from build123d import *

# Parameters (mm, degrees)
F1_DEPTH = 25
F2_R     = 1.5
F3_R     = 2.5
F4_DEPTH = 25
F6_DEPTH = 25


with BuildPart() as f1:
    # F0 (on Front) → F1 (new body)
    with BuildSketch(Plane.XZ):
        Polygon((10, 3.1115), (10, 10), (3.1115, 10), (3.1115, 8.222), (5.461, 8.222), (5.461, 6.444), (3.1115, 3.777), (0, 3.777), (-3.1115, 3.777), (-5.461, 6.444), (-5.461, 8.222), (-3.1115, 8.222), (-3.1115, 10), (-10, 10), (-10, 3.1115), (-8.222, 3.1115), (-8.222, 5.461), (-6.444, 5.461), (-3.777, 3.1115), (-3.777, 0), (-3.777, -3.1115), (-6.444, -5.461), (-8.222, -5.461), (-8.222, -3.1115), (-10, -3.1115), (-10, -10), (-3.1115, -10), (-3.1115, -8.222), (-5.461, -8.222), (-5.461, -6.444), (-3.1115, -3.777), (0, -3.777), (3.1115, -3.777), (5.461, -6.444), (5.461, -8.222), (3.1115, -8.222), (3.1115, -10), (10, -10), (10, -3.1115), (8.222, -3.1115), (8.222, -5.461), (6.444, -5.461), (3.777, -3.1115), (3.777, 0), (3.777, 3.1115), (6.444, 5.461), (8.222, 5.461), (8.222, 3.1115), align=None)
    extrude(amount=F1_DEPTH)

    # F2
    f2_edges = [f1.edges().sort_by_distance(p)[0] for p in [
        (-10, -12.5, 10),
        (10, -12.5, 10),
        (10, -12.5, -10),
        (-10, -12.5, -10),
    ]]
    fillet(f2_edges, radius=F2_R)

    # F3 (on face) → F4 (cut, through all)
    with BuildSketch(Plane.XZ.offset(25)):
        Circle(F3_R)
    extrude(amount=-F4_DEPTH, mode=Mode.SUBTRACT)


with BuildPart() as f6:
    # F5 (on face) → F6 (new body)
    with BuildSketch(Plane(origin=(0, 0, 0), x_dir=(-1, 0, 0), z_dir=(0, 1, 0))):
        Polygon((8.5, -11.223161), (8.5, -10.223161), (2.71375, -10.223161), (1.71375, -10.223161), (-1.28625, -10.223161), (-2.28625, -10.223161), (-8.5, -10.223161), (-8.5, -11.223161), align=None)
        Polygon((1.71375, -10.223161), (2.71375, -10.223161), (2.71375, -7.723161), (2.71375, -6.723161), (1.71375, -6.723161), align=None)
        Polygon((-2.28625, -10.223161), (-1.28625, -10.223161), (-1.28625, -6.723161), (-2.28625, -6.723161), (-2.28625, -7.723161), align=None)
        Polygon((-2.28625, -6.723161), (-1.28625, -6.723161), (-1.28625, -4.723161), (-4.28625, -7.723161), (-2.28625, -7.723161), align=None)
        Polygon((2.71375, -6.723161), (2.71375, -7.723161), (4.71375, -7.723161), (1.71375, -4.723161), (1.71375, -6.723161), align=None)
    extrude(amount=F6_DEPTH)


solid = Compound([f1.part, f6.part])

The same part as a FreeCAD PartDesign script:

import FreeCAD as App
import Part
import Sketcher
from FreeCAD import Vector


def edges_at(feature, points):
    """Names of the edges that pass closest to the given points."""
    edges = feature.Shape.Edges
    near = lambda p: min(range(len(edges)), key=lambda i: edges[i].distToShape(Part.Vertex(*p))[0])
    return sorted({f"Edge{near(p) + 1}" for p in points})

doc = App.newDocument("Part")
body = doc.addObject("PartDesign::Body", "Body")

# Sketch on XZ plane
sketch1 = body.newObject("Sketcher::SketchObject", "Sketch")
sketch1.AttachmentSupport = (doc.getObject("XZ_Plane"), [""])
sketch1.MapMode = "FlatFace"
sketch1.addGeometry(Part.LineSegment(Vector(10, 3.1, 0), Vector(10, 10, 0)), False)
sketch1.addGeometry(Part.LineSegment(Vector(10, 10, 0), Vector(3.1, 10, 0)), False)
sketch1.addGeometry(Part.LineSegment(Vector(3.1, 10, 0), Vector(3.1, 8.2, 0)), False)
sketch1.addGeometry(Part.LineSegment(Vector(3.1, 8.2, 0), Vector(5.5, 8.2, 0)), False)
sketch1.addGeometry(Part.LineSegment(Vector(5.5, 8.2, 0), Vector(5.5, 6.4, 0)), False)
sketch1.addGeometry(Part.LineSegment(Vector(5.5, 6.4, 0), Vector(3.1, 3.8, 0)), False)
sketch1.addGeometry(Part.LineSegment(Vector(3.1, 3.8, 0), Vector(-3.1, 3.8, 0)), False)
sketch1.addGeometry(Part.LineSegment(Vector(-3.1, 3.8, 0), Vector(-5.5, 6.4, 0)), False)
sketch1.addGeometry(Part.LineSegment(Vector(-5.5, 6.4, 0), Vector(-5.5, 8.2, 0)), False)
sketch1.addGeometry(Part.LineSegment(Vector(-5.5, 8.2, 0), Vector(-3.1, 8.2, 0)), False)
sketch1.addGeometry(Part.LineSegment(Vector(-3.1, 8.2, 0), Vector(-3.1, 10, 0)), False)
sketch1.addGeometry(Part.LineSegment(Vector(-3.1, 10, 0), Vector(-10, 10, 0)), False)
sketch1.addGeometry(Part.LineSegment(Vector(-10, 10, 0), Vector(-10, 3.1, 0)), False)
sketch1.addGeometry(Part.LineSegment(Vector(-10, 3.1, 0), Vector(-8.2, 3.1, 0)), False)
sketch1.addGeometry(Part.LineSegment(Vector(-8.2, 3.1, 0), Vector(-8.2, 5.5, 0)), False)
sketch1.addGeometry(Part.LineSegment(Vector(-8.2, 5.5, 0), Vector(-6.4, 5.5, 0)), False)
sketch1.addGeometry(Part.LineSegment(Vector(-6.4, 5.5, 0), Vector(-3.8, 3.1, 0)), False)
sketch1.addGeometry(Part.LineSegment(Vector(-3.8, 3.1, 0), Vector(-3.8, -3.1, 0)), False)
sketch1.addGeometry(Part.LineSegment(Vector(-3.8, -3.1, 0), Vector(-6.4, -5.5, 0)), False)
sketch1.addGeometry(Part.LineSegment(Vector(-6.4, -5.5, 0), Vector(-8.2, -5.5, 0)), False)
sketch1.addGeometry(Part.LineSegment(Vector(-8.2, -5.5, 0), Vector(-8.2, -3.1, 0)), False)
sketch1.addGeometry(Part.LineSegment(Vector(-8.2, -3.1, 0), Vector(-10, -3.1, 0)), False)
sketch1.addGeometry(Part.LineSegment(Vector(-10, -3.1, 0), Vector(-10, -10, 0)), False)
sketch1.addGeometry(Part.LineSegment(Vector(-10, -10, 0), Vector(-3.1, -10, 0)), False)
sketch1.addGeometry(Part.LineSegment(Vector(-3.1, -10, 0), Vector(-3.1, -8.2, 0)), False)
sketch1.addGeometry(Part.LineSegment(Vector(-3.1, -8.2, 0), Vector(-5.5, -8.2, 0)), False)
sketch1.addGeometry(Part.LineSegment(Vector(-5.5, -8.2, 0), Vector(-5.5, -6.4, 0)), False)
sketch1.addGeometry(Part.LineSegment(Vector(-5.5, -6.4, 0), Vector(-3.1, -3.8, 0)), False)
sketch1.addGeometry(Part.LineSegment(Vector(-3.1, -3.8, 0), Vector(3.1, -3.8, 0)), False)
sketch1.addGeometry(Part.LineSegment(Vector(3.1, -3.8, 0), Vector(5.5, -6.4, 0)), False)
sketch1.addGeometry(Part.LineSegment(Vector(5.5, -6.4, 0), Vector(5.5, -8.2, 0)), False)
sketch1.addGeometry(Part.LineSegment(Vector(5.5, -8.2, 0), Vector(3.1, -8.2, 0)), False)
sketch1.addGeometry(Part.LineSegment(Vector(3.1, -8.2, 0), Vector(3.1, -10, 0)), False)
sketch1.addGeometry(Part.LineSegment(Vector(3.1, -10, 0), Vector(10, -10, 0)), False)
sketch1.addGeometry(Part.LineSegment(Vector(10, -10, 0), Vector(10, -3.1, 0)), False)
sketch1.addGeometry(Part.LineSegment(Vector(10, -3.1, 0), Vector(8.2, -3.1, 0)), False)
sketch1.addGeometry(Part.LineSegment(Vector(8.2, -3.1, 0), Vector(8.2, -5.5, 0)), False)
sketch1.addGeometry(Part.LineSegment(Vector(8.2, -5.5, 0), Vector(6.4, -5.5, 0)), False)
sketch1.addGeometry(Part.LineSegment(Vector(6.4, -5.5, 0), Vector(3.8, -3.1, 0)), False)
sketch1.addGeometry(Part.LineSegment(Vector(3.8, -3.1, 0), Vector(3.8, 3.1, 0)), False)
sketch1.addGeometry(Part.LineSegment(Vector(3.8, 3.1, 0), Vector(6.4, 5.5, 0)), False)
sketch1.addGeometry(Part.LineSegment(Vector(6.4, 5.5, 0), Vector(8.2, 5.5, 0)), False)
sketch1.addGeometry(Part.LineSegment(Vector(8.2, 5.5, 0), Vector(8.2, 3.1, 0)), False)
sketch1.addGeometry(Part.LineSegment(Vector(8.2, 3.1, 0), Vector(10, 3.1, 0)), False)
sketch1.addConstraint(Sketcher.Constraint("Coincident", 0, 2, 1, 1))
sketch1.addConstraint(Sketcher.Constraint("Coincident", 1, 2, 2, 1))
sketch1.addConstraint(Sketcher.Constraint("Coincident", 2, 2, 3, 1))
sketch1.addConstraint(Sketcher.Constraint("Coincident", 3, 2, 4, 1))
sketch1.addConstraint(Sketcher.Constraint("Coincident", 4, 2, 5, 1))
sketch1.addConstraint(Sketcher.Constraint("Coincident", 5, 2, 6, 1))
sketch1.addConstraint(Sketcher.Constraint("Coincident", 6, 2, 7, 1))
sketch1.addConstraint(Sketcher.Constraint("Coincident", 7, 2, 8, 1))
sketch1.addConstraint(Sketcher.Constraint("Coincident", 8, 2, 9, 1))
sketch1.addConstraint(Sketcher.Constraint("Coincident", 9, 2, 10, 1))
sketch1.addConstraint(Sketcher.Constraint("Coincident", 10, 2, 11, 1))
sketch1.addConstraint(Sketcher.Constraint("Coincident", 11, 2, 12, 1))
sketch1.addConstraint(Sketcher.Constraint("Coincident", 12, 2, 13, 1))
sketch1.addConstraint(Sketcher.Constraint("Coincident", 13, 2, 14, 1))
sketch1.addConstraint(Sketcher.Constraint("Coincident", 14, 2, 15, 1))
sketch1.addConstraint(Sketcher.Constraint("Coincident", 15, 2, 16, 1))
sketch1.addConstraint(Sketcher.Constraint("Coincident", 16, 2, 17, 1))
sketch1.addConstraint(Sketcher.Constraint("Coincident", 17, 2, 18, 1))
sketch1.addConstraint(Sketcher.Constraint("Coincident", 18, 2, 19, 1))
sketch1.addConstraint(Sketcher.Constraint("Coincident", 19, 2, 20, 1))
sketch1.addConstraint(Sketcher.Constraint("Coincident", 20, 2, 21, 1))
sketch1.addConstraint(Sketcher.Constraint("Coincident", 21, 2, 22, 1))
sketch1.addConstraint(Sketcher.Constraint("Coincident", 22, 2, 23, 1))
sketch1.addConstraint(Sketcher.Constraint("Coincident", 23, 2, 24, 1))
sketch1.addConstraint(Sketcher.Constraint("Coincident", 24, 2, 25, 1))
sketch1.addConstraint(Sketcher.Constraint("Coincident", 25, 2, 26, 1))
sketch1.addConstraint(Sketcher.Constraint("Coincident", 26, 2, 27, 1))
sketch1.addConstraint(Sketcher.Constraint("Coincident", 27, 2, 28, 1))
sketch1.addConstraint(Sketcher.Constraint("Coincident", 28, 2, 29, 1))
sketch1.addConstraint(Sketcher.Constraint("Coincident", 29, 2, 30, 1))
sketch1.addConstraint(Sketcher.Constraint("Coincident", 30, 2, 31, 1))
sketch1.addConstraint(Sketcher.Constraint("Coincident", 31, 2, 32, 1))
sketch1.addConstraint(Sketcher.Constraint("Coincident", 32, 2, 33, 1))
sketch1.addConstraint(Sketcher.Constraint("Coincident", 33, 2, 34, 1))
sketch1.addConstraint(Sketcher.Constraint("Coincident", 34, 2, 35, 1))
sketch1.addConstraint(Sketcher.Constraint("Coincident", 35, 2, 36, 1))
sketch1.addConstraint(Sketcher.Constraint("Coincident", 36, 2, 37, 1))
sketch1.addConstraint(Sketcher.Constraint("Coincident", 37, 2, 38, 1))
sketch1.addConstraint(Sketcher.Constraint("Coincident", 38, 2, 39, 1))
sketch1.addConstraint(Sketcher.Constraint("Coincident", 39, 2, 40, 1))
sketch1.addConstraint(Sketcher.Constraint("Coincident", 40, 2, 41, 1))
sketch1.addConstraint(Sketcher.Constraint("Coincident", 41, 2, 42, 1))
sketch1.addConstraint(Sketcher.Constraint("Coincident", 42, 2, 43, 1))
sketch1.addConstraint(Sketcher.Constraint("Coincident", 43, 2, 0, 1))
sketch1.addConstraint(Sketcher.Constraint("Vertical", 0))
sketch1.addConstraint(Sketcher.Constraint("Horizontal", 1))
sketch1.addConstraint(Sketcher.Constraint("Vertical", 2))
sketch1.addConstraint(Sketcher.Constraint("Horizontal", 3))
sketch1.addConstraint(Sketcher.Constraint("Vertical", 4))
sketch1.addConstraint(Sketcher.Constraint("Horizontal", 6))
sketch1.addConstraint(Sketcher.Constraint("Vertical", 8))
sketch1.addConstraint(Sketcher.Constraint("Horizontal", 9))
sketch1.addConstraint(Sketcher.Constraint("Vertical", 10))
sketch1.addConstraint(Sketcher.Constraint("Horizontal", 11))
sketch1.addConstraint(Sketcher.Constraint("Vertical", 12))
sketch1.addConstraint(Sketcher.Constraint("Horizontal", 13))
sketch1.addConstraint(Sketcher.Constraint("Vertical", 14))
sketch1.addConstraint(Sketcher.Constraint("Horizontal", 15))
sketch1.addConstraint(Sketcher.Constraint("Vertical", 17))
sketch1.addConstraint(Sketcher.Constraint("Horizontal", 19))
sketch1.addConstraint(Sketcher.Constraint("Vertical", 20))
sketch1.addConstraint(Sketcher.Constraint("Horizontal", 21))
sketch1.addConstraint(Sketcher.Constraint("Vertical", 22))
sketch1.addConstraint(Sketcher.Constraint("Horizontal", 23))
sketch1.addConstraint(Sketcher.Constraint("Vertical", 24))
sketch1.addConstraint(Sketcher.Constraint("Horizontal", 25))
sketch1.addConstraint(Sketcher.Constraint("Vertical", 26))
sketch1.addConstraint(Sketcher.Constraint("Horizontal", 28))
sketch1.addConstraint(Sketcher.Constraint("Vertical", 30))
sketch1.addConstraint(Sketcher.Constraint("Horizontal", 31))
sketch1.addConstraint(Sketcher.Constraint("Vertical", 32))
sketch1.addConstraint(Sketcher.Constraint("Horizontal", 33))
sketch1.addConstraint(Sketcher.Constraint("Vertical", 34))
sketch1.addConstraint(Sketcher.Constraint("Horizontal", 35))
sketch1.addConstraint(Sketcher.Constraint("Vertical", 36))
sketch1.addConstraint(Sketcher.Constraint("Horizontal", 37))
sketch1.addConstraint(Sketcher.Constraint("Vertical", 39))
sketch1.addConstraint(Sketcher.Constraint("Horizontal", 41))
sketch1.addConstraint(Sketcher.Constraint("Vertical", 42))
sketch1.addConstraint(Sketcher.Constraint("Horizontal", 43))
sketch1.addConstraint(Sketcher.Constraint("Symmetric", 0, 2, 22, 2, -1, 1))
sketch1.addConstraint(Sketcher.Constraint("Symmetric", 2, 2, 24, 2, -1, 1))
sketch1.addConstraint(Sketcher.Constraint("Symmetric", 4, 2, 26, 2, -1, 1))
sketch1.addConstraint(Sketcher.Constraint("Symmetric", 5, 2, 27, 2, -1, 1))
sketch1.addConstraint(Sketcher.Constraint("Symmetric", 7, 2, 29, 2, -1, 1))
sketch1.addConstraint(Sketcher.Constraint("Symmetric", 9, 2, 31, 2, -1, 1))
sketch1.addConstraint(Sketcher.Constraint("Symmetric", 11, 2, 33, 2, -1, 1))
sketch1.addConstraint(Sketcher.Constraint("Symmetric", 13, 2, 35, 2, -1, 1))
sketch1.addConstraint(Sketcher.Constraint("Symmetric", 15, 2, 37, 2, -1, 1))
sketch1.addConstraint(Sketcher.Constraint("Symmetric", 16, 2, 38, 2, -1, 1))
sketch1.addConstraint(Sketcher.Constraint("Symmetric", 18, 2, 40, 2, -1, 1))
sketch1.addConstraint(Sketcher.Constraint("Symmetric", 20, 2, 42, 2, -1, 1))
sketch1.addConstraint(Sketcher.Constraint("Symmetric", 4, 2, 7, 2, -2))
sketch1.addConstraint(Sketcher.Constraint("Symmetric", 2, 2, 9, 2, -2))
sketch1.addConstraint(Sketcher.Constraint("Symmetric", 0, 2, 11, 2, -2))
sketch1.addConstraint(Sketcher.Constraint("Symmetric", 20, 2, 35, 2, -2))
sketch1.addConstraint(Sketcher.Constraint("Symmetric", 18, 2, 37, 2, -2))
sketch1.addConstraint(Sketcher.Constraint("Perpendicular", 5, 16))
sketch1.addConstraint(Sketcher.Constraint("Perpendicular", 7, 18))
sketch1.addConstraint(Sketcher.Constraint("Perpendicular", 18, 29))
sketch1.addConstraint(Sketcher.Constraint("Perpendicular", 29, 40))
sketch1.addConstraint(Sketcher.Constraint("Horizontal", 13, 2, 16, 2))
sketch1.addConstraint(Sketcher.Constraint("Horizontal", 17, 2, 20, 2))
sketch1.addConstraint(Sketcher.Constraint("Vertical", 2, 2, 5, 2))
sketch1.addConstraint(Sketcher.Constraint("Equal", 13, 15))
sketch1.addConstraint(Sketcher.Constraint("Equal", 33, 0))
sketch1.addConstraint(Sketcher.Constraint("Equal", 43, 2))
sketch1.addConstraint(Sketcher.Constraint("Equal", 2, 4))
sketch1.addConstraint(Sketcher.Constraint("Equal", 31, 14))
sketch1.addConstraint(Sketcher.Constraint("Equal", 28, 17))
sketch1.addConstraint(Sketcher.Constraint("DistanceX", -1, 1, 0, 2, 10.0))
sketch1.addConstraint(Sketcher.Constraint("DistanceX", 6, 2, 6, 1, 6.223))
sketch1.addConstraint(Sketcher.Constraint("DistanceX", 13, 1, 13, 2, 1.778))
sketch1.addConstraint(Sketcher.Constraint("DistanceX", 3, 1, 3, 2, 2.3495))
sketch1.addConstraint(Sketcher.Constraint("DistanceY", -1, 1, 5, 2, 3.777))
pad1 = body.newObject("PartDesign::Pad", "Pad")
pad1.Profile = sketch1
pad1.Length = 25
doc.recompute()

fillet = body.newObject("PartDesign::Fillet", "Fillet")
fillet.Base = (pad1, edges_at(pad1, [
    (-10, -12.5, 10),
    (10, -12.5, 10),
    (10, -12.5, -10),
    (-10, -12.5, -10),
]))
fillet.Radius = 1.5

# Sketch on XZ plane
sketch2 = body.newObject("Sketcher::SketchObject", "Sketch001")
sketch2.AttachmentSupport = (doc.getObject("XZ_Plane"), [""])
sketch2.MapMode = "FlatFace"
sketch2.AttachmentOffset = App.Placement(Vector(0, 0, 25), App.Rotation())
sketch2.addGeometry(Part.Circle(Vector(0, 0, 0), Vector(0, 0, 1), 2.5), False)
sketch2.addConstraint(Sketcher.Constraint("Coincident", 0, 3, -1, 1))
sketch2.addConstraint(Sketcher.Constraint("Diameter", 0, 5.0))
pocket1 = body.newObject("PartDesign::Pocket", "Pocket")
pocket1.Profile = sketch2
pocket1.Type = "ThroughAll"
body2 = doc.addObject("PartDesign::Body", "Body001")

# Sketch on XZ plane
sketch3 = body2.newObject("Sketcher::SketchObject", "Sketch002")
sketch3.AttachmentSupport = (doc.getObject("XZ_Plane001"), [""])
sketch3.MapMode = "FlatFace"
sketch3.addGeometry(Part.LineSegment(Vector(-8.5, -11.2, 0), Vector(-8.5, -10.2, 0)), False)
sketch3.addGeometry(Part.LineSegment(Vector(-8.5, -10.2, 0), Vector(-2.7, -10.2, 0)), False)
sketch3.addGeometry(Part.LineSegment(Vector(-2.7, -10.2, 0), Vector(-2.7, -7.7, 0)), False)
sketch3.addGeometry(Part.LineSegment(Vector(-2.7, -7.7, 0), Vector(-4.7, -7.7, 0)), False)
sketch3.addGeometry(Part.LineSegment(Vector(-4.7, -7.7, 0), Vector(-1.7, -4.7, 0)), False)
sketch3.addGeometry(Part.LineSegment(Vector(-1.7, -4.7, 0), Vector(-1.7, -10.2, 0)), False)
sketch3.addGeometry(Part.LineSegment(Vector(-1.7, -10.2, 0), Vector(1.3, -10.2, 0)), False)
sketch3.addGeometry(Part.LineSegment(Vector(1.3, -10.2, 0), Vector(1.3, -4.7, 0)), False)
sketch3.addGeometry(Part.LineSegment(Vector(1.3, -4.7, 0), Vector(4.3, -7.7, 0)), False)
sketch3.addGeometry(Part.LineSegment(Vector(4.3, -7.7, 0), Vector(2.3, -7.7, 0)), False)
sketch3.addGeometry(Part.LineSegment(Vector(2.3, -7.7, 0), Vector(2.3, -10.2, 0)), False)
sketch3.addGeometry(Part.LineSegment(Vector(2.3, -10.2, 0), Vector(8.5, -10.2, 0)), False)
sketch3.addGeometry(Part.LineSegment(Vector(8.5, -10.2, 0), Vector(8.5, -11.2, 0)), False)
sketch3.addGeometry(Part.LineSegment(Vector(8.5, -11.2, 0), Vector(-8.5, -11.2, 0)), False)
sketch3.addConstraint(Sketcher.Constraint("Coincident", 0, 2, 1, 1))
sketch3.addConstraint(Sketcher.Constraint("Coincident", 1, 2, 2, 1))
sketch3.addConstraint(Sketcher.Constraint("Coincident", 2, 2, 3, 1))
sketch3.addConstraint(Sketcher.Constraint("Coincident", 3, 2, 4, 1))
sketch3.addConstraint(Sketcher.Constraint("Coincident", 4, 2, 5, 1))
sketch3.addConstraint(Sketcher.Constraint("Coincident", 5, 2, 6, 1))
sketch3.addConstraint(Sketcher.Constraint("Coincident", 6, 2, 7, 1))
sketch3.addConstraint(Sketcher.Constraint("Coincident", 7, 2, 8, 1))
sketch3.addConstraint(Sketcher.Constraint("Coincident", 8, 2, 9, 1))
sketch3.addConstraint(Sketcher.Constraint("Coincident", 9, 2, 10, 1))
sketch3.addConstraint(Sketcher.Constraint("Coincident", 10, 2, 11, 1))
sketch3.addConstraint(Sketcher.Constraint("Coincident", 11, 2, 12, 1))
sketch3.addConstraint(Sketcher.Constraint("Coincident", 12, 2, 13, 1))
sketch3.addConstraint(Sketcher.Constraint("Coincident", 13, 2, 0, 1))
sketch3.addConstraint(Sketcher.Constraint("Vertical", 0))
sketch3.addConstraint(Sketcher.Constraint("Horizontal", 1))
sketch3.addConstraint(Sketcher.Constraint("Vertical", 2))
sketch3.addConstraint(Sketcher.Constraint("Horizontal", 3))
sketch3.addConstraint(Sketcher.Constraint("Vertical", 5))
sketch3.addConstraint(Sketcher.Constraint("Horizontal", 6))
sketch3.addConstraint(Sketcher.Constraint("Vertical", 7))
sketch3.addConstraint(Sketcher.Constraint("Horizontal", 9))
sketch3.addConstraint(Sketcher.Constraint("Vertical", 10))
sketch3.addConstraint(Sketcher.Constraint("Horizontal", 11))
sketch3.addConstraint(Sketcher.Constraint("Vertical", 12))
sketch3.addConstraint(Sketcher.Constraint("Horizontal", 13))
sketch3.addConstraint(Sketcher.Constraint("Symmetric", 0, 2, 11, 2, -2))
sketch3.addConstraint(Sketcher.Constraint("Perpendicular", 4, 8))
sketch3.addConstraint(Sketcher.Constraint("Horizontal", 1, 2, 5, 2))
sketch3.addConstraint(Sketcher.Constraint("Horizontal", 4, 2, 7, 2))
sketch3.addConstraint(Sketcher.Constraint("Horizontal", 3, 2, 8, 2))
sketch3.addConstraint(Sketcher.Constraint("Equal", 3, 9))
sketch3.addConstraint(Sketcher.Constraint("Equal", 4, 8))
sketch3.addConstraint(Sketcher.Constraint("DistanceX", 3, 2, 3, 1, 2.0))
sketch3.addConstraint(Sketcher.Constraint("DistanceX", 6, 1, 6, 2, 3.0))
sketch3.addConstraint(Sketcher.Constraint("DistanceX", 13, 2, 13, 1, 17.0))
sketch3.addConstraint(Sketcher.Constraint("DistanceY", 0, 1, 0, 2, 1.0))
sketch3.addConstraint(Sketcher.Constraint("DistanceY", 2, 1, 2, 2, 2.5))
sketch3.addConstraint(Sketcher.Constraint("DistanceY", 5, 2, 5, 1, 5.5))
sketch3.addConstraint(Sketcher.Constraint("DistanceX", 1, 1, 1, 2, 5.78625))
sketch3.addConstraint(Sketcher.Constraint("DistanceY", 0, 2, -1, 1, 10.223161))
pad2 = body2.newObject("PartDesign::Pad", "Pad001")
pad2.Profile = sketch3
pad2.Length = 25
pad2.Reversed = True

doc.recompute()
